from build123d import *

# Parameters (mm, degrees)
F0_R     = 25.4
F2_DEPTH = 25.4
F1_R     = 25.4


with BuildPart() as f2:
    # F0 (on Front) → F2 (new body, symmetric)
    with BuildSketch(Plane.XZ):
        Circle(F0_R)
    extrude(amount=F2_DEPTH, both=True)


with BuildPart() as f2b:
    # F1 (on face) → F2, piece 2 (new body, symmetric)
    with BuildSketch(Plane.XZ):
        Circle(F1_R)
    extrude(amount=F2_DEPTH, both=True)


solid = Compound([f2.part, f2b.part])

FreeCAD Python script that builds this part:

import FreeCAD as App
import Part
import Sketcher
Q = App.Units.Quantity

doc = App.newDocument("Part")
body = doc.addObject("PartDesign::Body", "Body")

# Sketch on XZ plane
sketch1 = body.newObject("Sketcher::SketchObject", "Sketch")
sketch1.AttachmentSupport = (doc.getObject("XZ_Plane"), [""])
sketch1.MapMode = "FlatFace"
sketch1.addGeometry(Part.Circle(App.Vector(0, 0, 0), App.Vector(0, 0, 1), 25), False)
sketch1.addConstraint(Sketcher.Constraint("Coincident", 0, 3, -1, 1))
sketch1.addConstraint(Sketcher.Constraint("Diameter", 0, Q("2 in")))
pad1 = body.newObject("PartDesign::Pad", "Pad")
pad1.Profile = sketch1
pad1.Length = Q("2 in")
pad1.Midplane = True
body2 = doc.addObject("PartDesign::Body", "Body001")

# Sketch on XZ plane
sketch2 = body2.newObject("Sketcher::SketchObject", "Sketch001")
sketch2.AttachmentSupport = (doc.getObject("XZ_Plane001"), [""])
sketch2.MapMode = "FlatFace"
sketch2.addGeometry(Part.Circle(App.Vector(0, 0, 0), App.Vector(0, 0, 1), 25), False)
sketch2.addConstraint(Sketcher.Constraint("Coincident", 0, 3, -1, 1))
sketch2.addConstraint(Sketcher.Constraint("Diameter", 0, Q("2 in")))
pad2 = body2.newObject("PartDesign::Pad", "Pad001")
pad2.Profile = sketch2
pad2.Length = Q("2 in")
pad2.Midplane = True

doc.recompute()
